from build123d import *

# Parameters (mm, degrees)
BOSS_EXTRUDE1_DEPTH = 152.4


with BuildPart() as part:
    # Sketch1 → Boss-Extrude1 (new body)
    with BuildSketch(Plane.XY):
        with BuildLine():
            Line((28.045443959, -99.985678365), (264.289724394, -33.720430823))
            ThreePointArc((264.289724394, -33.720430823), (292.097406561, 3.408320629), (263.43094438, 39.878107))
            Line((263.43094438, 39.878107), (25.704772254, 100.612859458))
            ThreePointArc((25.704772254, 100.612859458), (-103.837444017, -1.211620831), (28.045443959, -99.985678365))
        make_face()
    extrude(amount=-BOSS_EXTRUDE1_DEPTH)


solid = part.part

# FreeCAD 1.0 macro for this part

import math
import FreeCAD as App
import Part
import Sketcher

V = App.Vector
Q = App.Units.Quantity

doc = App.newDocument("Part")
params = doc.addObject("Spreadsheet::Sheet", "Params")
for row, (alias, value) in enumerate([
    ("sketch1_radius", "1.5 in"),
    ("pad1_length", "6 in"),
], start=1):
    params.set(f"A{row}", alias)
    params.set(f"B{row}", "=" + value)
    params.setAlias(f"B{row}", alias)

body = doc.addObject("PartDesign::Body", "Body")

# Sketch on XY plane
sketch1 = body.newObject("Sketcher::SketchObject", "Sketch")
sketch1.AttachmentSupport = (doc.getObject("XY_Plane"), [""])
sketch1.MapMode = "FlatFace"
sketch1.addGeometry([
    Part.LineSegment(V(28.045444, -99.985678, 0), V(264.289724, -33.720431, 0)),
    Part.ArcOfCircle(Part.Circle(V(254, 2.963783, 0), V(0, 0, 1), 38.1), math.radians(-74.331478), math.radians(75.668522)),
    Part.LineSegment(V(263.430944, 39.878107, 0), V(25.704772, 100.612859, 0)),
    Part.ArcOfCircle(Part.Circle(V(0, 0, 0), V(0, 0, 1), 103.844513), math.radians(75.668522), math.radians(285.668522)),
], False)
sketch1.addConstraint([
    Sketcher.Constraint("Tangent", 0, 2, 1, 1),
    Sketcher.Constraint("Tangent", 1, 2, 2, 1),
    Sketcher.Constraint("Tangent", 2, 2, 3, 1),
    Sketcher.Constraint("Tangent", 3, 2, 0, 1),
    Sketcher.Constraint("Coincident", 3, 3, -1, 1),
    Sketcher.Constraint("Radius", 1, Q("1.5 in")),
    Sketcher.Constraint("DistanceX", -1, 1, 1, 3, Q("10 in")),
    Sketcher.Constraint("Radius", 3, 103.844513),
    Sketcher.Constraint("DistanceX", 3, 2, 1, 2, 235.3855),
])
sketch1.setExpression("Constraints[5]", "Params.sketch1_radius")
pad1 = body.newObject("PartDesign::Pad", "Pad")
pad1.Profile = sketch1
pad1.setExpression("Length", "Params.pad1_length")
pad1.Reversed = True

doc.recompute()
